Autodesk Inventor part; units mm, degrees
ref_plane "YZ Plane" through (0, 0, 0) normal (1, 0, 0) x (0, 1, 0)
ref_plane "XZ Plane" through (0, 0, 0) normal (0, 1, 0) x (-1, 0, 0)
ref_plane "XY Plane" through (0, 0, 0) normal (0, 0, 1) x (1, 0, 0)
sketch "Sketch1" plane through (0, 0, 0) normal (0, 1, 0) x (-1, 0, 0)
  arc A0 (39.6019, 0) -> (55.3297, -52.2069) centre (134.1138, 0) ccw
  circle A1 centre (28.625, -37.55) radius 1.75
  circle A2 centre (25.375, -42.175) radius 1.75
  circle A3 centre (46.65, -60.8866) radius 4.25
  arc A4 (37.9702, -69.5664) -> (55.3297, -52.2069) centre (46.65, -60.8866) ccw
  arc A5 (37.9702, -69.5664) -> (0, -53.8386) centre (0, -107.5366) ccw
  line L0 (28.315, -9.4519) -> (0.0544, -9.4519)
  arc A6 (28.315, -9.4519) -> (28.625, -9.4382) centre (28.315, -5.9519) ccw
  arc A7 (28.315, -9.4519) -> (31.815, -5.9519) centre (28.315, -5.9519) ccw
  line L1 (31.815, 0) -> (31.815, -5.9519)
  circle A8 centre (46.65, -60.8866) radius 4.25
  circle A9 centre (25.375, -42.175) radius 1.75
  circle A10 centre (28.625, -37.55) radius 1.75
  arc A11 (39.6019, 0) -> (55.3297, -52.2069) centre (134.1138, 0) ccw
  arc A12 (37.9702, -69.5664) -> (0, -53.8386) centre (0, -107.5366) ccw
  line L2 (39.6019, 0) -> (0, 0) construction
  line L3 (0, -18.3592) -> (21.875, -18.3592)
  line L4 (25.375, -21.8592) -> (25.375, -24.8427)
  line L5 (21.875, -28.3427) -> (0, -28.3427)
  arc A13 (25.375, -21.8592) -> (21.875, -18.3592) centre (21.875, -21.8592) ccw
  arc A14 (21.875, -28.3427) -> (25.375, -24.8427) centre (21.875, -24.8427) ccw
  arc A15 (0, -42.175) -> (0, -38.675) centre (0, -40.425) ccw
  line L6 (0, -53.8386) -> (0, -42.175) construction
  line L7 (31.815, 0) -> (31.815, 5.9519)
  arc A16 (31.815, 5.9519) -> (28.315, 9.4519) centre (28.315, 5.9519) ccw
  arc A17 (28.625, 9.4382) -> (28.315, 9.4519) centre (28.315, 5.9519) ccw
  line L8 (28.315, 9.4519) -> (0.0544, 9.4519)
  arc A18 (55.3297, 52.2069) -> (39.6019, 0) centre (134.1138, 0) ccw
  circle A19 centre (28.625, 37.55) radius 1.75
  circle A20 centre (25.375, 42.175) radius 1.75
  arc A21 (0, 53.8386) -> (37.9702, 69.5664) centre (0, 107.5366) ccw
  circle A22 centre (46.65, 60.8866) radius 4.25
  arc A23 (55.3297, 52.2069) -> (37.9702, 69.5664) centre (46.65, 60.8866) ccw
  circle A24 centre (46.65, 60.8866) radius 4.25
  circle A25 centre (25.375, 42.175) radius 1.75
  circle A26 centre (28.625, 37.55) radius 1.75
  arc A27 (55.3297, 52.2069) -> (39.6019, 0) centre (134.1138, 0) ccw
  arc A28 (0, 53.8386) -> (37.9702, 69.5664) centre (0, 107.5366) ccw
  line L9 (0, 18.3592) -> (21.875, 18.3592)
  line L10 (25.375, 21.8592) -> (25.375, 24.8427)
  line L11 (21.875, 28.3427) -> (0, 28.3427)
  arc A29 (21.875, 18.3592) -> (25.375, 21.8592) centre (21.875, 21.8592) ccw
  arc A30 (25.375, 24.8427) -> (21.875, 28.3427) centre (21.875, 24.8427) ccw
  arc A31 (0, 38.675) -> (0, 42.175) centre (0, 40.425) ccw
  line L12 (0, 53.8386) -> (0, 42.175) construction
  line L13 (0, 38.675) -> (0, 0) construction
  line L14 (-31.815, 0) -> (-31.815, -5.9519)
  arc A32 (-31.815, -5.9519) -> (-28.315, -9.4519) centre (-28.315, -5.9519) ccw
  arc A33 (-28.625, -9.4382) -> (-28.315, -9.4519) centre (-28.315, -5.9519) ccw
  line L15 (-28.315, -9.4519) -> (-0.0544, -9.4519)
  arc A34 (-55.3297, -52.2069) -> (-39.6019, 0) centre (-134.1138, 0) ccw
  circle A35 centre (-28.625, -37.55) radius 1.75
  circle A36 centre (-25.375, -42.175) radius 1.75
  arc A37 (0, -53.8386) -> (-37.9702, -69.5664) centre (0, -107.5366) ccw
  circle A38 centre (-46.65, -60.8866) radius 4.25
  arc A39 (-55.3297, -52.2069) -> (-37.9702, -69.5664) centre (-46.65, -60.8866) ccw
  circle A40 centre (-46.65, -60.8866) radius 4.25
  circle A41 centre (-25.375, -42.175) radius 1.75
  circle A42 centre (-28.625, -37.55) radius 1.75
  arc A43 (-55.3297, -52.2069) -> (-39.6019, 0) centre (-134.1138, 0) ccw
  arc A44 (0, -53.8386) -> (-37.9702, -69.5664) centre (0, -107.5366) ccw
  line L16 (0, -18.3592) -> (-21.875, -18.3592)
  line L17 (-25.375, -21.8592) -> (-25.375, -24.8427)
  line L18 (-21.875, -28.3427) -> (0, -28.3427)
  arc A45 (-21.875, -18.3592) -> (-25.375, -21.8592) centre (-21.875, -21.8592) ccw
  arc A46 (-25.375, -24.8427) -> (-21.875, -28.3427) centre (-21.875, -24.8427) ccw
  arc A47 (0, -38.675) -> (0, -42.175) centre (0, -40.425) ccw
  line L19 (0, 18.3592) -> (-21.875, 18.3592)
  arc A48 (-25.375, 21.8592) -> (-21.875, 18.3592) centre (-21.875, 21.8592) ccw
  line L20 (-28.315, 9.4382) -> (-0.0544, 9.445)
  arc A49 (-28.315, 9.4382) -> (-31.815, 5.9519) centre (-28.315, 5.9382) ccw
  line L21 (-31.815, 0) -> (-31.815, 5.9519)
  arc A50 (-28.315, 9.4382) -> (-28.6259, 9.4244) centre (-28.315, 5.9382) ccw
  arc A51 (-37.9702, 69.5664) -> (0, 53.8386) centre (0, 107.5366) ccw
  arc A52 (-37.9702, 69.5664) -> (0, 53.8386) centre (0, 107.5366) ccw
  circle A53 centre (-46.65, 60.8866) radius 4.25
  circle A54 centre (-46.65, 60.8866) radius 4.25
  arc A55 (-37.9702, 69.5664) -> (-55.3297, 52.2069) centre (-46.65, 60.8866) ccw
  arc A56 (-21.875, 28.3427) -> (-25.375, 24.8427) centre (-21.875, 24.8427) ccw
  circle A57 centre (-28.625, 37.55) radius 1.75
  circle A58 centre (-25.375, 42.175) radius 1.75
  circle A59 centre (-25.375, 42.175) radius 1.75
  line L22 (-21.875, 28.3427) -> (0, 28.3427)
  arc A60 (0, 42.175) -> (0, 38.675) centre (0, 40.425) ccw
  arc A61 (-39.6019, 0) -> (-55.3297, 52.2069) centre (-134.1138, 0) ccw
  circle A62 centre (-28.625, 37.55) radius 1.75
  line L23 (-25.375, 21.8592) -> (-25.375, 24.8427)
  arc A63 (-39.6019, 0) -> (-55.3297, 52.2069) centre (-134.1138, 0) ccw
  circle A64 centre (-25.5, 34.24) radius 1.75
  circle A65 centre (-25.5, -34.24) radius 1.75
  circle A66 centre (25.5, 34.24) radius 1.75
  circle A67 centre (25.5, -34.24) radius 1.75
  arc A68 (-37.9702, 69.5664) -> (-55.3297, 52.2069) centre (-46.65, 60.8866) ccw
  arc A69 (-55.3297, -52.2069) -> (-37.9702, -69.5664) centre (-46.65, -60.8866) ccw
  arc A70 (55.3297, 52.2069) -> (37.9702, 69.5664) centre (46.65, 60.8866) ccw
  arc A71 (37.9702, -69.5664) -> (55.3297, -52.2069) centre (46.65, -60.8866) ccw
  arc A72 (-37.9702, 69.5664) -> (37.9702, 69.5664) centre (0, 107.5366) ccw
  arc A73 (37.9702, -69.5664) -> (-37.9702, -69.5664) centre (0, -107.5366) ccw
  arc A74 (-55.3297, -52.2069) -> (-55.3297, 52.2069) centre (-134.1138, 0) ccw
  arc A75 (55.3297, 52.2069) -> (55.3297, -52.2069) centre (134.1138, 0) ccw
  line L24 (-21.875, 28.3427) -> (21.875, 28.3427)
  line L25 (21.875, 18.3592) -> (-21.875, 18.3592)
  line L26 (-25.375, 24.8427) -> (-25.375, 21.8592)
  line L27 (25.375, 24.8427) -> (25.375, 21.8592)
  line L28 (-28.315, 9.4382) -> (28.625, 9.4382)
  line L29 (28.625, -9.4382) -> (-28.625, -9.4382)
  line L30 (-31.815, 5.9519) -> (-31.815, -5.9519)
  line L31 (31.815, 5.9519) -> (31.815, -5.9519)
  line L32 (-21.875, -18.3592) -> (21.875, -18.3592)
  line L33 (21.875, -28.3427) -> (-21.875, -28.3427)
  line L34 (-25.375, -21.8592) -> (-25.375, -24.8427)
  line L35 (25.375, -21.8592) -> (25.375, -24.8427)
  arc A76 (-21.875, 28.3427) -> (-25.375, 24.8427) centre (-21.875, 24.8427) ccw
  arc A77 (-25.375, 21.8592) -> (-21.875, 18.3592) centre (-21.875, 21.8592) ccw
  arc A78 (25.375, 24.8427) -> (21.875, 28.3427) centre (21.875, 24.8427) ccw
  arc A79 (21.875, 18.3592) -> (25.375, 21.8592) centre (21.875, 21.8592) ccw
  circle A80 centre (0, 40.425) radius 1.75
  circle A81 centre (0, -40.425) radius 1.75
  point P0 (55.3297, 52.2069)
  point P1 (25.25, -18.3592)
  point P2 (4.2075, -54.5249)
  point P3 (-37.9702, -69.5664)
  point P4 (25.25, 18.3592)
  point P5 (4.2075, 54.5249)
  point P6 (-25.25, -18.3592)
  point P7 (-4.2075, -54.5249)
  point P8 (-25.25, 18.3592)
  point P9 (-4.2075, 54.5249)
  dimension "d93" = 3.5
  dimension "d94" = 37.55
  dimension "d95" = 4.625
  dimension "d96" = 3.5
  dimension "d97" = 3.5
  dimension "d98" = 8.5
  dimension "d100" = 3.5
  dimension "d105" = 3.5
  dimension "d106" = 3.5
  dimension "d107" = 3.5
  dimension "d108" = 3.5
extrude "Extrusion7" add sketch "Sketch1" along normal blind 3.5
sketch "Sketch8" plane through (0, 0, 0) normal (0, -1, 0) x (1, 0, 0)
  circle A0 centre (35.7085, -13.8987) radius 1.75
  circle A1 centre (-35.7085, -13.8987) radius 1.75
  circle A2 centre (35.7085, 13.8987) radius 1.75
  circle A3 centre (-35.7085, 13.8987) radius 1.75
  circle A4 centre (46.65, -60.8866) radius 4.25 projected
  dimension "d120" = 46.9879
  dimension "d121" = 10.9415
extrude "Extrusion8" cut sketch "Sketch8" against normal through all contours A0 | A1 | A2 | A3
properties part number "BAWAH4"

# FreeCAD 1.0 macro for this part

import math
import FreeCAD as App
import Part
import Sketcher

V = App.Vector

doc = App.newDocument("Part")
body = doc.addObject("PartDesign::Body", "Body")

# Sketch on XZ plane
sketch1 = doc.addObject("Sketcher::SketchObject", "Sketch")
body.addObject(sketch1)
sketch1.AttachmentSupport = (doc.XZ_Plane, [""])
sketch1.MapMode = "FlatFace"
sketch1.addGeometry(Part.ArcOfCircle(Part.Circle(V(-134.1138, 0, 0), V(0, 0, 1), 94.511877), math.radians(-33.530757), math.radians(0)), False)
sketch1.addGeometry(Part.ArcOfCircle(Part.Circle(V(-134.1138, 0, 0), V(0, 0, 1), 94.5119), math.radians(0), math.radians(33.530757)), False)
sketch1.addGeometry(Part.ArcOfCircle(Part.Circle(V(-46.65, 60.8866, 0), V(0, 0, 1), 12.274949), math.radians(45), math.radians(225)), False)
sketch1.addGeometry(Part.ArcOfCircle(Part.Circle(V(0, 107.5366, 0), V(0, 0, 1), 53.697972), math.radians(-135), math.radians(-90)), False)
sketch1.addGeometry(Part.ArcOfCircle(Part.Circle(V(0, 107.5366, 0), V(0, 0, 1), 53.698), math.radians(-90), math.radians(-45)), False)
sketch1.addGeometry(Part.ArcOfCircle(Part.Circle(V(46.65, 60.8866, 0), V(0, 0, 1), 12.275091), math.radians(-45), math.radians(135)), False)
sketch1.addGeometry(Part.ArcOfCircle(Part.Circle(V(134.1138, 0, 0), V(0, 0, 1), 94.511877), math.radians(146.469243), math.radians(180)), False)
sketch1.addGeometry(Part.ArcOfCircle(Part.Circle(V(134.1138, 0, 0), V(0, 0, 1), 94.5119), math.radians(180), math.radians(213.530757)), False)
sketch1.addGeometry(Part.ArcOfCircle(Part.Circle(V(46.65, -60.8866, 0), V(0, 0, 1), 12.274949), math.radians(-135), math.radians(45)), False)
sketch1.addGeometry(Part.ArcOfCircle(Part.Circle(V(0, -107.5366, 0), V(0, 0, 1), 53.697972), math.radians(45), math.radians(90)), False)
sketch1.addGeometry(Part.ArcOfCircle(Part.Circle(V(0, -107.5366, 0), V(0, 0, 1), 53.698), math.radians(90), math.radians(135)), False)
sketch1.addGeometry(Part.ArcOfCircle(Part.Circle(V(-46.65, -60.8866, 0), V(0, 0, 1), 12.275091), math.radians(135), math.radians(315)), False)
sketch1.addGeometry(Part.Circle(V(46.65, -60.8866, 0), V(0, 0, 1), 4.25), False)
sketch1.addGeometry(Part.Circle(V(25.375, -42.175, 0), V(0, 0, 1), 1.75), False)
sketch1.addGeometry(Part.Circle(V(28.625, -37.55, 0), V(0, 0, 1), 1.75), False)
sketch1.addGeometry(Part.Circle(V(0, -40.425, 0), V(0, 0, 1), 1.75), False)
sketch1.addGeometry(Part.Circle(V(25.5, -34.24, 0), V(0, 0, 1), 1.75), False)
sketch1.addGeometry(Part.LineSegment(V(21.875, -18.3592, 0), V(-21.875, -18.3592, 0)), False)
sketch1.addGeometry(Part.ArcOfCircle(Part.Circle(V(-21.875, -21.8592, 0), V(0, 0, 1), 3.5), math.radians(90), math.radians(180)), False)
sketch1.addGeometry(Part.LineSegment(V(-25.375, -21.8592, 0), V(-25.375, -24.8427, 0)), False)
sketch1.addGeometry(Part.ArcOfCircle(Part.Circle(V(-21.875, -24.8427, 0), V(0, 0, 1), 3.5), math.radians(180), math.radians(270)), False)
sketch1.addGeometry(Part.LineSegment(V(-21.875, -28.3427, 0), V(21.875, -28.3427, 0)), False)
sketch1.addGeometry(Part.ArcOfCircle(Part.Circle(V(21.875, -24.8427, 0), V(0, 0, 1), 3.5), math.radians(-90), math.radians(0)), False)
sketch1.addGeometry(Part.LineSegment(V(25.375, -24.8427, 0), V(25.375, -21.8592, 0)), False)
sketch1.addGeometry(Part.ArcOfCircle(Part.Circle(V(21.875, -21.8592, 0), V(0, 0, 1), 3.5), math.radians(0), math.radians(90)), False)
sketch1.addGeometry(Part.Circle(V(-25.375, -42.175, 0), V(0, 0, 1), 1.75), False)
sketch1.addGeometry(Part.Circle(V(-28.625, -37.55, 0), V(0, 0, 1), 1.75), False)
sketch1.addGeometry(Part.Circle(V(-46.65, -60.8866, 0), V(0, 0, 1), 4.25), False)
sketch1.addGeometry(Part.Circle(V(-25.5, -34.24, 0), V(0, 0, 1), 1.75), False)
sketch1.addGeometry(Part.ArcOfCircle(Part.Circle(V(-28.315, -5.9519, 0), V(0, 0, 1), 3.5), math.radians(180), math.radians(264.918653)), False)
sketch1.addGeometry(Part.LineSegment(V(-28.625, -9.4382, 0), V(28.625, -9.4382, 0)), False)
sketch1.addGeometry(Part.ArcOfCircle(Part.Circle(V(28.315, -5.9519, 0), V(0, 0, 1), 3.5), math.radians(-84.918653), math.radians(0)), False)
sketch1.addGeometry(Part.LineSegment(V(31.815, -5.9519, 0), V(31.815, 5.9519, 0)), False)
sketch1.addGeometry(Part.ArcOfCircle(Part.Circle(V(28.315, 5.9382, 0), V(0, 0, 1), 3.5), math.radians(0.224271), math.radians(90)), False)
sketch1.addGeometry(Part.LineSegment(V(28.315, 9.4382, 0), V(-28.625, 9.4382, 0)), False)
sketch1.addGeometry(Part.ArcOfCircle(Part.Circle(V(-28.315, 5.9519, 0), V(0, 0, 1), 3.5), math.radians(95.081347), math.radians(180)), False)
sketch1.addGeometry(Part.LineSegment(V(-31.815, 5.9519, 0), V(-31.815, -5.9519, 0)), False)
sketch1.addGeometry(Part.Circle(V(25.5, 34.24, 0), V(0, 0, 1), 1.75), False)
sketch1.addGeometry(Part.LineSegment(V(-21.875, 18.3592, 0), V(21.875, 18.3592, 0)), False)
sketch1.addGeometry(Part.ArcOfCircle(Part.Circle(V(21.875, 21.8592, 0), V(0, 0, 1), 3.5), math.radians(-90), math.radians(0)), False)
sketch1.addGeometry(Part.LineSegment(V(25.375, 21.8592, 0), V(25.375, 24.8427, 0)), False)
sketch1.addGeometry(Part.ArcOfCircle(Part.Circle(V(21.875, 24.8427, 0), V(0, 0, 1), 3.5), math.radians(0), math.radians(90)), False)
sketch1.addGeometry(Part.LineSegment(V(21.875, 28.3427, 0), V(-21.875, 28.3427, 0)), False)
sketch1.addGeometry(Part.ArcOfCircle(Part.Circle(V(-21.875, 24.8427, 0), V(0, 0, 1), 3.5), math.radians(90), math.radians(180)), False)
sketch1.addGeometry(Part.LineSegment(V(-25.375, 24.8427, 0), V(-25.375, 21.8592, 0)), False)
sketch1.addGeometry(Part.ArcOfCircle(Part.Circle(V(-21.875, 21.8592, 0), V(0, 0, 1), 3.5), math.radians(180), math.radians(270)), False)
sketch1.addGeometry(Part.Circle(V(46.65, 60.8866, 0), V(0, 0, 1), 4.25), False)
sketch1.addGeometry(Part.Circle(V(28.625, 37.55, 0), V(0, 0, 1), 1.75), False)
sketch1.addGeometry(Part.Circle(V(25.375, 42.175, 0), V(0, 0, 1), 1.75), False)
sketch1.addGeometry(Part.Circle(V(0, 40.425, 0), V(0, 0, 1), 1.75), False)
sketch1.addGeometry(Part.Circle(V(-25.5, 34.24, 0), V(0, 0, 1), 1.75), False)
sketch1.addGeometry(Part.Circle(V(-28.625, 37.55, 0), V(0, 0, 1), 1.75), False)
sketch1.addGeometry(Part.Circle(V(-25.375, 42.175, 0), V(0, 0, 1), 1.75), False)
sketch1.addGeometry(Part.Circle(V(-46.65, 60.8866, 0), V(0, 0, 1), 4.25), False)
sketch1.addConstraint(Sketcher.Constraint("Tangent", 0, 2, 1, 1))
sketch1.addConstraint(Sketcher.Constraint("Coincident", 1, 2, 2, 2))
sketch1.addConstraint(Sketcher.Constraint("Tangent", 2, 1, 3, 1))
sketch1.addConstraint(Sketcher.Constraint("Tangent", 3, 2, 4, 1))
sketch1.addConstraint(Sketcher.Constraint("Tangent", 4, 2, 5, 2))
sketch1.addConstraint(Sketcher.Constraint("Coincident", 5, 1, 6, 1))
sketch1.addConstraint(Sketcher.Constraint("Tangent", 6, 2, 7, 1))
sketch1.addConstraint(Sketcher.Constraint("Coincident", 7, 2, 8, 2))
sketch1.addConstraint(Sketcher.Constraint("Tangent", 8, 1, 9, 1))
sketch1.addConstraint(Sketcher.Constraint("Tangent", 9, 2, 10, 1))
sketch1.addConstraint(Sketcher.Constraint("Tangent", 10, 2, 11, 2))
sketch1.addConstraint(Sketcher.Constraint("Coincident", 11, 1, 0, 1))
sketch1.addConstraint(Sketcher.Constraint("Tangent", 17, 2, 18, 1))
sketch1.addConstraint(Sketcher.Constraint("Tangent", 18, 2, 19, 1))
sketch1.addConstraint(Sketcher.Constraint("Tangent", 19, 2, 20, 1))
sketch1.addConstraint(Sketcher.Constraint("Tangent", 20, 2, 21, 1))
sketch1.addConstraint(Sketcher.Constraint("Tangent", 21, 2, 22, 1))
sketch1.addConstraint(Sketcher.Constraint("Tangent", 22, 2, 23, 1))
sketch1.addConstraint(Sketcher.Constraint("Tangent", 23, 2, 24, 1))
sketch1.addConstraint(Sketcher.Constraint("Tangent", 24, 2, 17, 1))
sketch1.addConstraint(Sketcher.Constraint("Coincident", 29, 2, 30, 1))
sketch1.addConstraint(Sketcher.Constraint("Coincident", 30, 2, 31, 1))
sketch1.addConstraint(Sketcher.Constraint("Tangent", 31, 2, 32, 1))
sketch1.addConstraint(Sketcher.Constraint("Coincident", 32, 2, 33, 1))
sketch1.addConstraint(Sketcher.Constraint("Tangent", 33, 2, 34, 1))
sketch1.addConstraint(Sketcher.Constraint("Coincident", 34, 2, 35, 1))
sketch1.addConstraint(Sketcher.Constraint("Tangent", 35, 2, 36, 1))
sketch1.addConstraint(Sketcher.Constraint("Tangent", 36, 2, 29, 1))
sketch1.addConstraint(Sketcher.Constraint("Tangent", 38, 2, 39, 1))
sketch1.addConstraint(Sketcher.Constraint("Tangent", 39, 2, 40, 1))
sketch1.addConstraint(Sketcher.Constraint("Tangent", 40, 2, 41, 1))
sketch1.addConstraint(Sketcher.Constraint("Tangent", 41, 2, 42, 1))
sketch1.addConstraint(Sketcher.Constraint("Tangent", 42, 2, 43, 1))
sketch1.addConstraint(Sketcher.Constraint("Tangent", 43, 2, 44, 1))
sketch1.addConstraint(Sketcher.Constraint("Tangent", 44, 2, 45, 1))
sketch1.addConstraint(Sketcher.Constraint("Tangent", 45, 2, 38, 1))
sketch1.addConstraint(Sketcher.Constraint("Horizontal", 17))
sketch1.addConstraint(Sketcher.Constraint("Vertical", 19))
sketch1.addConstraint(Sketcher.Constraint("Horizontal", 21))
sketch1.addConstraint(Sketcher.Constraint("Vertical", 23))
sketch1.addConstraint(Sketcher.Constraint("Horizontal", 30))
sketch1.addConstraint(Sketcher.Constraint("Vertical", 32))
sketch1.addConstraint(Sketcher.Constraint("Horizontal", 34))
sketch1.addConstraint(Sketcher.Constraint("Vertical", 36))
sketch1.addConstraint(Sketcher.Constraint("Horizontal", 38))
sketch1.addConstraint(Sketcher.Constraint("Vertical", 40))
sketch1.addConstraint(Sketcher.Constraint("Horizontal", 42))
sketch1.addConstraint(Sketcher.Constraint("Vertical", 44))
sketch1.addConstraint(Sketcher.Constraint("Coincident", 12, 3, 8, 3))
sketch1.addConstraint(Sketcher.Constraint("Coincident", 27, 3, 11, 3))
sketch1.addConstraint(Sketcher.Constraint("Coincident", 46, 3, 5, 3))
sketch1.addConstraint(Sketcher.Constraint("Coincident", 53, 3, 2, 3))
sketch1.addConstraint(Sketcher.Constraint("Equal", 0, 1))
sketch1.addConstraint(Sketcher.Constraint("Equal", 3, 4))
sketch1.addConstraint(Sketcher.Constraint("Equal", 2, 5))
sketch1.addConstraint(Sketcher.Constraint("Equal", 1, 6))
sketch1.addConstraint(Sketcher.Constraint("Equal", 6, 7))
sketch1.addConstraint(Sketcher.Constraint("Equal", 5, 8))
sketch1.addConstraint(Sketcher.Constraint("Equal", 4, 9))
sketch1.addConstraint(Sketcher.Constraint("Equal", 9, 10))
sketch1.addConstraint(Sketcher.Constraint("Equal", 8, 11))
sketch1.addConstraint(Sketcher.Constraint("Equal", 13, 14))
sketch1.addConstraint(Sketcher.Constraint("Equal", 14, 15))
sketch1.addConstraint(Sketcher.Constraint("Equal", 15, 16))
sketch1.addConstraint(Sketcher.Constraint("Equal", 18, 20))
sketch1.addConstraint(Sketcher.Constraint("Equal", 20, 22))
sketch1.addConstraint(Sketcher.Constraint("Equal", 22, 24))
sketch1.addConstraint(Sketcher.Constraint("Equal", 16, 25))
sketch1.addConstraint(Sketcher.Constraint("Equal", 25, 26))
sketch1.addConstraint(Sketcher.Constraint("Equal", 12, 27))
sketch1.addConstraint(Sketcher.Constraint("Equal", 26, 28))
sketch1.addConstraint(Sketcher.Constraint("Equal", 24, 29))
sketch1.addConstraint(Sketcher.Constraint("Equal", 29, 31))
sketch1.addConstraint(Sketcher.Constraint("Equal", 31, 33))
sketch1.addConstraint(Sketcher.Constraint("Equal", 33, 35))
sketch1.addConstraint(Sketcher.Constraint("Equal", 28, 37))
sketch1.addConstraint(Sketcher.Constraint("Equal", 35, 39))
sketch1.addConstraint(Sketcher.Constraint("Equal", 39, 41))
sketch1.addConstraint(Sketcher.Constraint("Equal", 41, 43))
sketch1.addConstraint(Sketcher.Constraint("Equal", 43, 45))
sketch1.addConstraint(Sketcher.Constraint("Equal", 27, 46))
sketch1.addConstraint(Sketcher.Constraint("Equal", 37, 47))
sketch1.addConstraint(Sketcher.Constraint("Equal", 47, 48))
sketch1.addConstraint(Sketcher.Constraint("Equal", 48, 49))
sketch1.addConstraint(Sketcher.Constraint("Equal", 49, 50))
sketch1.addConstraint(Sketcher.Constraint("Equal", 50, 51))
sketch1.addConstraint(Sketcher.Constraint("Equal", 51, 52))
sketch1.addConstraint(Sketcher.Constraint("Equal", 46, 53))
sketch1.addConstraint(Sketcher.Constraint("Symmetric", 0, 3, 6, 3, -1, 1))
sketch1.addConstraint(Sketcher.Constraint("Symmetric", 2, 3, 8, 3, -1, 1))
sketch1.addConstraint(Sketcher.Constraint("Symmetric", 5, 3, 11, 3, -1, 1))
sketch1.addConstraint(Sketcher.Constraint("Symmetric", 31, 3, 35, 3, -1, 1))
sketch1.addConstraint(Sketcher.Constraint("Symmetric", 28, 3, 37, 3, -1, 1))
sketch1.addConstraint(Sketcher.Constraint("Symmetric", 18, 3, 39, 3, -1, 1))
sketch1.addConstraint(Sketcher.Constraint("Symmetric", 22, 3, 43, 3, -1, 1))
sketch1.addConstraint(Sketcher.Constraint("Symmetric", 26, 3, 47, 3, -1, 1))
sketch1.addConstraint(Sketcher.Constraint("Symmetric", 25, 3, 48, 3, -1, 1))
sketch1.addConstraint(Sketcher.Constraint("Symmetric", 15, 3, 49, 3, -1, 1))
sketch1.addConstraint(Sketcher.Constraint("Symmetric", 16, 3, 50, 3, -1, 1))
sketch1.addConstraint(Sketcher.Constraint("Symmetric", 14, 3, 51, 3, -1, 1))
sketch1.addConstraint(Sketcher.Constraint("Symmetric", 13, 3, 52, 3, -1, 1))
sketch1.addConstraint(Sketcher.Constraint("Symmetric", 2, 3, 5, 3, -2))
sketch1.addConstraint(Sketcher.Constraint("Symmetric", 13, 3, 25, 3, -2))
sketch1.addConstraint(Sketcher.Constraint("Symmetric", 14, 3, 26, 3, -2))
sketch1.addConstraint(Sketcher.Constraint("Symmetric", 16, 3, 28, 3, -2))
sketch1.addConstraint(Sketcher.Constraint("Symmetric", 29, 2, 34, 2, -1))
sketch1.addConstraint(Sketcher.Constraint("PointOnObject", 0, 3, -1))
sketch1.addConstraint(Sketcher.Constraint("PointOnObject", 15, 3, -2))
sketch1.addConstraint(Sketcher.Constraint("PointOnObject", 0, 2, -1))
sketch1.addConstraint(Sketcher.Constraint("PointOnObject", 3, 2, -2))
sketch1.addConstraint(Sketcher.Constraint("PointOnObject", 6, 2, -1))
sketch1.addConstraint(Sketcher.Constraint("PointOnObject", 9, 2, -2))
sketch1.addConstraint(Sketcher.Constraint("Horizontal", 35, 3, 32, 2))
sketch1.addConstraint(Sketcher.Constraint("Vertical", 24, 3, 39, 3))
sketch1.addConstraint(Sketcher.Constraint("Vertical", 52, 3, 18, 2))
sketch1.addConstraint(Sketcher.Constraint("Vertical", 51, 3, 29, 2))
sketch1.addConstraint(Sketcher.Constraint("Diameter", 12, 8.5))
sketch1.addConstraint(Sketcher.Constraint("Diameter", 13, 3.5))
sketch1.addConstraint(Sketcher.Constraint("Radius", 18, 3.5))
sketch1.addConstraint(Sketcher.Constraint("DistanceY", 14, 3, -1, 1, 37.55))
sketch1.addConstraint(Sketcher.Constraint("Radius", 1, 94.512))
sketch1.addConstraint(Sketcher.Constraint("Radius", 2, 12.275))
sketch1.addConstraint(Sketcher.Constraint("Radius", 3, 53.698))
sketch1.addConstraint(Sketcher.Constraint("DistanceX", 17, 2, 17, 1, 43.75))
sketch1.addConstraint(Sketcher.Constraint("DistanceX", 30, 1, 30, 2, 57.25))
sketch1.addConstraint(Sketcher.Constraint("DistanceX", 34, 2, 34, 1, 56.94))
sketch1.addConstraint(Sketcher.Constraint("DistanceX", -1, 1, 16, 3, 25.5))
sketch1.addConstraint(Sketcher.Constraint("DistanceX", 2, 3, -1, 1, 46.65))
sketch1.addConstraint(Sketcher.Constraint("DistanceY", 16, 3, -1, 1, 34.24))
sketch1.addConstraint(Sketcher.Constraint("DistanceY", 19, 2, 19, 1, 2.9835))
sketch1.addConstraint(Sketcher.Constraint("DistanceY", 32, 1, 32, 2, 11.9038))
sketch1.addConstraint(Sketcher.Constraint("DistanceY", 13, 3, -1, 1, 42.175))
sketch1.addConstraint(Sketcher.Constraint("DistanceY", 15, 3, -1, 1, 40.425))
sketch1.addConstraint(Sketcher.Constraint("DistanceX", 0, 2, -1, 1, 39.602))
sketch1.addConstraint(Sketcher.Constraint("DistanceY", -1, 1, 1, 2, 52.207))
sketch1.addConstraint(Sketcher.Constraint("DistanceY", 18, 3, -1, 1, 21.8592))
pad1 = doc.addObject("PartDesign::Pad", "Pad")
body.addObject(pad1)
pad1.Profile = sketch1
pad1.Length = 3.5
pad1.Reversed = True

# Sketch on XZ plane
sketch2 = doc.addObject("Sketcher::SketchObject", "Sketch001")
body.addObject(sketch2)
sketch2.AttachmentSupport = (doc.XZ_Plane, [""])
sketch2.MapMode = "FlatFace"
sketch2.addGeometry(Part.Circle(V(35.7085, -13.8987, 0), V(0, 0, 1), 1.75), False)
sketch2.addGeometry(Part.Circle(V(-35.7085, -13.8987, 0), V(0, 0, 1), 1.75), False)
sketch2.addGeometry(Part.Circle(V(35.7085, 13.8987, 0), V(0, 0, 1), 1.75), False)
sketch2.addGeometry(Part.Circle(V(-35.7085, 13.8987, 0), V(0, 0, 1), 1.75), False)
sketch2.addConstraint(Sketcher.Constraint("Equal", 0, 1))
sketch2.addConstraint(Sketcher.Constraint("Equal", 1, 2))
sketch2.addConstraint(Sketcher.Constraint("Equal", 2, 3))
sketch2.addConstraint(Sketcher.Constraint("Symmetric", 1, 3, 2, 3, -1, 1))
sketch2.addConstraint(Sketcher.Constraint("Symmetric", 0, 3, 3, 3, -1, 1))
sketch2.addConstraint(Sketcher.Constraint("Symmetric", 0, 3, 1, 3, -2))
sketch2.addConstraint(Sketcher.Constraint("Diameter", 0, 3.5))
sketch2.addConstraint(Sketcher.Constraint("DistanceX", 1, 3, 0, 3, 71.417))
sketch2.addConstraint(Sketcher.Constraint("DistanceY", 0, 3, -1, 1, 13.8987))
pocket1 = doc.addObject("PartDesign::Pocket", "Pocket")
body.addObject(pocket1)
pocket1.Profile = sketch2
pocket1.Type = "ThroughAll"

doc.recompute()
